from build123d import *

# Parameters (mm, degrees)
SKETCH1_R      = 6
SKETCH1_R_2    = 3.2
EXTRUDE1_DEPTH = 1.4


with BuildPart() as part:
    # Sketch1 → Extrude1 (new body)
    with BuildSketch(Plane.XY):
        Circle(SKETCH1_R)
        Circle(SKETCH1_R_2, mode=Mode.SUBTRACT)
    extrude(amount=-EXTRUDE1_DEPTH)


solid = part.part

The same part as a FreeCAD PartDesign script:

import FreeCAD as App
import Part
import Sketcher

V = App.Vector

doc = App.newDocument("Part")
body = doc.addObject("PartDesign::Body", "Body")

sketch1 = body.newObject("Sketcher::SketchObject", "Sketch")
sketch1.AttachmentSupport = (doc.getObject("XY_Plane"), [""])
sketch1.MapMode = "FlatFace"
sketch1.addGeometry([
    Part.Circle(V(0, 0, 0), V(0, 0, 1), 6),
    Part.Circle(V(0, 0, 0), V(0, 0, 1), 3.2),
], False)
sketch1.addConstraint([
    Sketcher.Constraint("Coincident", 0, 3, -1, 1),
    Sketcher.Constraint("Coincident", 1, 3, -1, 1),
    Sketcher.Constraint("Diameter", 0, 12.0),
    Sketcher.Constraint("Diameter", 1, 6.4),
])
pad1 = body.newObject("PartDesign::Pad", "Pad")
pad1.Profile = sketch1
pad1.Length = 1.4
pad1.Reversed = True

doc.recompute()
